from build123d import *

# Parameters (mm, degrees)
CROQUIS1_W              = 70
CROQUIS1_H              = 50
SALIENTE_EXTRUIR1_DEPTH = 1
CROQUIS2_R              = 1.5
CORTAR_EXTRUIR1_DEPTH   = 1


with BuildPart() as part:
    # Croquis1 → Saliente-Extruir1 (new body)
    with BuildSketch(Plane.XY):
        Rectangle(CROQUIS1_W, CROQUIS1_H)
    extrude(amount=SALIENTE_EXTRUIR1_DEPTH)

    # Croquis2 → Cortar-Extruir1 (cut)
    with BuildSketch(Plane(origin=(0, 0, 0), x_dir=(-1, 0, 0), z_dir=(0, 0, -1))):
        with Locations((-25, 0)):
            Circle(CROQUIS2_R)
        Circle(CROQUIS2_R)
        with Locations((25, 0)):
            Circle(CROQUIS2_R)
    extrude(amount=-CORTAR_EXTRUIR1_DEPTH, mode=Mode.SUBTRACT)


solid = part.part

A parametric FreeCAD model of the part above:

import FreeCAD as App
import Part
import Sketcher
from FreeCAD import Vector


def add_polygon(sketch, points):
    """Adds a closed chain of lines whose ends are joined by coincident constraints."""
    first, n = sketch.GeometryCount, len(points)
    for a, b in zip(points, points[1:] + points[:1]):
        sketch.addGeometry(Part.LineSegment(App.Vector(*a, 0), App.Vector(*b, 0)), False)
    for i in range(n):
        sketch.addConstraint(Sketcher.Constraint("Coincident", first + i, 2, first + (i + 1) % n, 1))

doc = App.newDocument("Part")
params = doc.addObject("Spreadsheet::Sheet", "Params")
for row, (alias, value) in enumerate([
    ("sketch1_width", "70 mm"),
    ("sketch1_height", "50 mm"),
    ("pad1_length", "1 mm"),
    ("sketch2_diameter", "3 mm"),
    ("pocket1_length", "1 mm"),
], start=1):
    params.set(f"A{row}", alias)
    params.set(f"B{row}", "=" + value)
    params.setAlias(f"B{row}", alias)

body = doc.addObject("PartDesign::Body", "Body")

sketch1 = doc.addObject("Sketcher::SketchObject", "Sketch")
body.addObject(sketch1)
sketch1.AttachmentSupport = (doc.XY_Plane, [""])
sketch1.MapMode = "FlatFace"
add_polygon(sketch1, [(-35, 25), (-35, -25), (35, -25), (35, 25)])
sketch1.addConstraint(Sketcher.Constraint("Vertical", 0))
sketch1.addConstraint(Sketcher.Constraint("Horizontal", 1))
sketch1.addConstraint(Sketcher.Constraint("Vertical", 2))
sketch1.addConstraint(Sketcher.Constraint("Horizontal", 3))
sketch1.addConstraint(Sketcher.Constraint("Symmetric", 0, 2, 2, 2, -1, 1))
sketch1.addConstraint(Sketcher.Constraint("DistanceX", 1, 1, 1, 2, 70.0))
sketch1.addConstraint(Sketcher.Constraint("DistanceY", 0, 2, 0, 1, 50.0))
sketch1.setExpression("Constraints[9]", "Params.sketch1_width")
sketch1.setExpression("Constraints[10]", "Params.sketch1_height")
pad1 = doc.addObject("PartDesign::Pad", "Pad")
body.addObject(pad1)
pad1.Profile = sketch1
pad1.setExpression("Length", "Params.pad1_length")

sketch2 = doc.addObject("Sketcher::SketchObject", "Sketch001")
body.addObject(sketch2)
sketch2.AttachmentSupport = (doc.XY_Plane, [""])
sketch2.MapMode = "FlatFace"
sketch2.addGeometry(Part.Circle(Vector(25, 0, 0), Vector(0, 0, 1), 1.5), False)
sketch2.addGeometry(Part.Circle(Vector(0, 0, 0), Vector(0, 0, 1), 1.5), False)
sketch2.addGeometry(Part.Circle(Vector(-25, 0, 0), Vector(0, 0, 1), 1.5), False)
sketch2.addConstraint(Sketcher.Constraint("Coincident", 1, 3, -1, 1))
sketch2.addConstraint(Sketcher.Constraint("Equal", 0, 1))
sketch2.addConstraint(Sketcher.Constraint("Equal", 1, 2))
sketch2.addConstraint(Sketcher.Constraint("Symmetric", 0, 3, 2, 3, -1, 1))
sketch2.addConstraint(Sketcher.Constraint("PointOnObject", 0, 3, -1))
sketch2.addConstraint(Sketcher.Constraint("Diameter", 0, 3.0))
sketch2.addConstraint(Sketcher.Constraint("DistanceX", -1, 1, 0, 3, 25.0))
sketch2.setExpression("Constraints[5]", "Params.sketch2_diameter")
pocket1 = doc.addObject("PartDesign::Pocket", "Pocket")
body.addObject(pocket1)
pocket1.Profile = sketch2
pocket1.setExpression("Length", "Params.pocket1_length")
pocket1.Reversed = True

doc.recompute()
